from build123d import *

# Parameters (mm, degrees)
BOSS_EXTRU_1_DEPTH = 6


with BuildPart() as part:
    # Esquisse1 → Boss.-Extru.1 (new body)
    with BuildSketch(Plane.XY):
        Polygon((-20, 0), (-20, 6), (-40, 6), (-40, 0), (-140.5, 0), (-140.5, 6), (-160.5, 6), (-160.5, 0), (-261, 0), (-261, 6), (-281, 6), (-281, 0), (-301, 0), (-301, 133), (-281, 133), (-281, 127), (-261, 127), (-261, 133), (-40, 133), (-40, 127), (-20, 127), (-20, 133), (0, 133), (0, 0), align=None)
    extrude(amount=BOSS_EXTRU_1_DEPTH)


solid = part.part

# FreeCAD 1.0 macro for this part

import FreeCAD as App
import Part
import Sketcher
Q = App.Units.Quantity

doc = App.newDocument("Part")
body = doc.addObject("PartDesign::Body", "Body")

sketch1 = body.newObject("Sketcher::SketchObject", "Sketch")
sketch1.AttachmentSupport = (doc.getObject("XY_Plane"), [""])
sketch1.MapMode = "FlatFace"
sketch1.addGeometry(Part.LineSegment(App.Vector(-20, 6, 0), App.Vector(-20, 0, 0)), False)
sketch1.addGeometry(Part.LineSegment(App.Vector(-20, 0, 0), App.Vector(0, 0, 0)), False)
sketch1.addGeometry(Part.LineSegment(App.Vector(0, 0, 0), App.Vector(0, 133, 0)), False)
sketch1.addGeometry(Part.LineSegment(App.Vector(0, 133, 0), App.Vector(-20, 133, 0)), False)
sketch1.addGeometry(Part.LineSegment(App.Vector(-20, 133, 0), App.Vector(-20, 127, 0)), False)
sketch1.addGeometry(Part.LineSegment(App.Vector(-20, 127, 0), App.Vector(-40, 127, 0)), False)
sketch1.addGeometry(Part.LineSegment(App.Vector(-40, 127, 0), App.Vector(-40, 133, 0)), False)
sketch1.addGeometry(Part.LineSegment(App.Vector(-40, 133, 0), App.Vector(-261, 133, 0)), False)
sketch1.addGeometry(Part.LineSegment(App.Vector(-261, 133, 0), App.Vector(-261, 127, 0)), False)
sketch1.addGeometry(Part.LineSegment(App.Vector(-261, 127, 0), App.Vector(-281, 127, 0)), False)
sketch1.addGeometry(Part.LineSegment(App.Vector(-281, 127, 0), App.Vector(-281, 133, 0)), False)
sketch1.addGeometry(Part.LineSegment(App.Vector(-281, 133, 0), App.Vector(-301, 133, 0)), False)
sketch1.addGeometry(Part.LineSegment(App.Vector(-301, 133, 0), App.Vector(-301, 0, 0)), False)
sketch1.addGeometry(Part.LineSegment(App.Vector(-301, 0, 0), App.Vector(-281, 0, 0)), False)
sketch1.addGeometry(Part.LineSegment(App.Vector(-281, 0, 0), App.Vector(-281, 6, 0)), False)
sketch1.addGeometry(Part.LineSegment(App.Vector(-281, 6, 0), App.Vector(-261, 6, 0)), False)
sketch1.addGeometry(Part.LineSegment(App.Vector(-261, 6, 0), App.Vector(-261, 0, 0)), False)
sketch1.addGeometry(Part.LineSegment(App.Vector(-261, 0, 0), App.Vector(-160, 0, 0)), False)
sketch1.addGeometry(Part.LineSegment(App.Vector(-160, 0, 0), App.Vector(-160, 6, 0)), False)
sketch1.addGeometry(Part.LineSegment(App.Vector(-160, 6, 0), App.Vector(-140, 6, 0)), False)
sketch1.addGeometry(Part.LineSegment(App.Vector(-140, 6, 0), App.Vector(-140, 0, 0)), False)
sketch1.addGeometry(Part.LineSegment(App.Vector(-140, 0, 0), App.Vector(-40, 0, 0)), False)
sketch1.addGeometry(Part.LineSegment(App.Vector(-40, 0, 0), App.Vector(-40, 6, 0)), False)
sketch1.addGeometry(Part.LineSegment(App.Vector(-40, 6, 0), App.Vector(-20, 6, 0)), False)
sketch1.addConstraint(Sketcher.Constraint("Coincident", 0, 2, 1, 1))
sketch1.addConstraint(Sketcher.Constraint("Coincident", 1, 2, 2, 1))
sketch1.addConstraint(Sketcher.Constraint("Coincident", 2, 2, 3, 1))
sketch1.addConstraint(Sketcher.Constraint("Coincident", 3, 2, 4, 1))
sketch1.addConstraint(Sketcher.Constraint("Coincident", 4, 2, 5, 1))
sketch1.addConstraint(Sketcher.Constraint("Coincident", 5, 2, 6, 1))
sketch1.addConstraint(Sketcher.Constraint("Coincident", 6, 2, 7, 1))
sketch1.addConstraint(Sketcher.Constraint("Coincident", 7, 2, 8, 1))
sketch1.addConstraint(Sketcher.Constraint("Coincident", 8, 2, 9, 1))
sketch1.addConstraint(Sketcher.Constraint("Coincident", 9, 2, 10, 1))
sketch1.addConstraint(Sketcher.Constraint("Coincident", 10, 2, 11, 1))
sketch1.addConstraint(Sketcher.Constraint("Coincident", 11, 2, 12, 1))
sketch1.addConstraint(Sketcher.Constraint("Coincident", 12, 2, 13, 1))
sketch1.addConstraint(Sketcher.Constraint("Coincident", 13, 2, 14, 1))
sketch1.addConstraint(Sketcher.Constraint("Coincident", 14, 2, 15, 1))
sketch1.addConstraint(Sketcher.Constraint("Coincident", 15, 2, 16, 1))
sketch1.addConstraint(Sketcher.Constraint("Coincident", 16, 2, 17, 1))
sketch1.addConstraint(Sketcher.Constraint("Coincident", 17, 2, 18, 1))
sketch1.addConstraint(Sketcher.Constraint("Coincident", 18, 2, 19, 1))
sketch1.addConstraint(Sketcher.Constraint("Coincident", 19, 2, 20, 1))
sketch1.addConstraint(Sketcher.Constraint("Coincident", 20, 2, 21, 1))
sketch1.addConstraint(Sketcher.Constraint("Coincident", 21, 2, 22, 1))
sketch1.addConstraint(Sketcher.Constraint("Coincident", 22, 2, 23, 1))
sketch1.addConstraint(Sketcher.Constraint("Coincident", 23, 2, 0, 1))
sketch1.addConstraint(Sketcher.Constraint("Vertical", 0))
sketch1.addConstraint(Sketcher.Constraint("Horizontal", 1))
sketch1.addConstraint(Sketcher.Constraint("Vertical", 2))
sketch1.addConstraint(Sketcher.Constraint("Horizontal", 3))
sketch1.addConstraint(Sketcher.Constraint("Vertical", 4))
sketch1.addConstraint(Sketcher.Constraint("Horizontal", 5))
sketch1.addConstraint(Sketcher.Constraint("Vertical", 6))
sketch1.addConstraint(Sketcher.Constraint("Horizontal", 7))
sketch1.addConstraint(Sketcher.Constraint("Vertical", 8))
sketch1.addConstraint(Sketcher.Constraint("Horizontal", 9))
sketch1.addConstraint(Sketcher.Constraint("Vertical", 10))
sketch1.addConstraint(Sketcher.Constraint("Horizontal", 11))
sketch1.addConstraint(Sketcher.Constraint("Vertical", 12))
sketch1.addConstraint(Sketcher.Constraint("Horizontal", 13))
sketch1.addConstraint(Sketcher.Constraint("Vertical", 14))
sketch1.addConstraint(Sketcher.Constraint("Horizontal", 15))
sketch1.addConstraint(Sketcher.Constraint("Vertical", 16))
sketch1.addConstraint(Sketcher.Constraint("Horizontal", 17))
sketch1.addConstraint(Sketcher.Constraint("Vertical", 18))
sketch1.addConstraint(Sketcher.Constraint("Horizontal", 19))
sketch1.addConstraint(Sketcher.Constraint("Vertical", 20))
sketch1.addConstraint(Sketcher.Constraint("Horizontal", 21))
sketch1.addConstraint(Sketcher.Constraint("Vertical", 22))
sketch1.addConstraint(Sketcher.Constraint("Horizontal", 23))
sketch1.addConstraint(Sketcher.Constraint("Coincident", 1, 2, -1, 1))
sketch1.addConstraint(Sketcher.Constraint("PointOnObject", 12, 2, -1))
sketch1.addConstraint(Sketcher.Constraint("PointOnObject", 16, 2, -1))
sketch1.addConstraint(Sketcher.Constraint("PointOnObject", 20, 2, -1))
sketch1.addConstraint(Sketcher.Constraint("Horizontal", 3, 2, 6, 2))
sketch1.addConstraint(Sketcher.Constraint("Horizontal", 5, 2, 8, 2))
sketch1.addConstraint(Sketcher.Constraint("Horizontal", 7, 2, 10, 2))
sketch1.addConstraint(Sketcher.Constraint("Horizontal", 15, 2, 18, 2))
sketch1.addConstraint(Sketcher.Constraint("Horizontal", 19, 2, 22, 2))
sketch1.addConstraint(Sketcher.Constraint("Vertical", 0, 2, 3, 2))
sketch1.addConstraint(Sketcher.Constraint("Vertical", 10, 2, 13, 2))
sketch1.addConstraint(Sketcher.Constraint("Vertical", 8, 2, 15, 2))
sketch1.addConstraint(Sketcher.Constraint("Vertical", 6, 2, 21, 2))
sketch1.addConstraint(Sketcher.Constraint("Equal", 3, 5))
sketch1.addConstraint(Sketcher.Constraint("Equal", 5, 9))
sketch1.addConstraint(Sketcher.Constraint("Equal", 9, 11))
sketch1.addConstraint(Sketcher.Constraint("Equal", 15, 19))
sketch1.addConstraint(Sketcher.Constraint("Equal", 17, 21))
sketch1.addConstraint(Sketcher.Constraint("Equal", 0, 4))
sketch1.addConstraint(Sketcher.Constraint("DistanceX", 1, 1, 1, 2, Q("20 mm")))
sketch1.addConstraint(Sketcher.Constraint("DistanceX", 7, 2, 7, 1, Q("221 mm")))
sketch1.addConstraint(Sketcher.Constraint("DistanceY", 0, 2, 0, 1, Q("6 mm")))
sketch1.addConstraint(Sketcher.Constraint("DistanceY", 2, 1, 2, 2, Q("133 mm")))
pad1 = body.newObject("PartDesign::Pad", "Pad")
pad1.Profile = sketch1
pad1.Length = 6

doc.recompute()
